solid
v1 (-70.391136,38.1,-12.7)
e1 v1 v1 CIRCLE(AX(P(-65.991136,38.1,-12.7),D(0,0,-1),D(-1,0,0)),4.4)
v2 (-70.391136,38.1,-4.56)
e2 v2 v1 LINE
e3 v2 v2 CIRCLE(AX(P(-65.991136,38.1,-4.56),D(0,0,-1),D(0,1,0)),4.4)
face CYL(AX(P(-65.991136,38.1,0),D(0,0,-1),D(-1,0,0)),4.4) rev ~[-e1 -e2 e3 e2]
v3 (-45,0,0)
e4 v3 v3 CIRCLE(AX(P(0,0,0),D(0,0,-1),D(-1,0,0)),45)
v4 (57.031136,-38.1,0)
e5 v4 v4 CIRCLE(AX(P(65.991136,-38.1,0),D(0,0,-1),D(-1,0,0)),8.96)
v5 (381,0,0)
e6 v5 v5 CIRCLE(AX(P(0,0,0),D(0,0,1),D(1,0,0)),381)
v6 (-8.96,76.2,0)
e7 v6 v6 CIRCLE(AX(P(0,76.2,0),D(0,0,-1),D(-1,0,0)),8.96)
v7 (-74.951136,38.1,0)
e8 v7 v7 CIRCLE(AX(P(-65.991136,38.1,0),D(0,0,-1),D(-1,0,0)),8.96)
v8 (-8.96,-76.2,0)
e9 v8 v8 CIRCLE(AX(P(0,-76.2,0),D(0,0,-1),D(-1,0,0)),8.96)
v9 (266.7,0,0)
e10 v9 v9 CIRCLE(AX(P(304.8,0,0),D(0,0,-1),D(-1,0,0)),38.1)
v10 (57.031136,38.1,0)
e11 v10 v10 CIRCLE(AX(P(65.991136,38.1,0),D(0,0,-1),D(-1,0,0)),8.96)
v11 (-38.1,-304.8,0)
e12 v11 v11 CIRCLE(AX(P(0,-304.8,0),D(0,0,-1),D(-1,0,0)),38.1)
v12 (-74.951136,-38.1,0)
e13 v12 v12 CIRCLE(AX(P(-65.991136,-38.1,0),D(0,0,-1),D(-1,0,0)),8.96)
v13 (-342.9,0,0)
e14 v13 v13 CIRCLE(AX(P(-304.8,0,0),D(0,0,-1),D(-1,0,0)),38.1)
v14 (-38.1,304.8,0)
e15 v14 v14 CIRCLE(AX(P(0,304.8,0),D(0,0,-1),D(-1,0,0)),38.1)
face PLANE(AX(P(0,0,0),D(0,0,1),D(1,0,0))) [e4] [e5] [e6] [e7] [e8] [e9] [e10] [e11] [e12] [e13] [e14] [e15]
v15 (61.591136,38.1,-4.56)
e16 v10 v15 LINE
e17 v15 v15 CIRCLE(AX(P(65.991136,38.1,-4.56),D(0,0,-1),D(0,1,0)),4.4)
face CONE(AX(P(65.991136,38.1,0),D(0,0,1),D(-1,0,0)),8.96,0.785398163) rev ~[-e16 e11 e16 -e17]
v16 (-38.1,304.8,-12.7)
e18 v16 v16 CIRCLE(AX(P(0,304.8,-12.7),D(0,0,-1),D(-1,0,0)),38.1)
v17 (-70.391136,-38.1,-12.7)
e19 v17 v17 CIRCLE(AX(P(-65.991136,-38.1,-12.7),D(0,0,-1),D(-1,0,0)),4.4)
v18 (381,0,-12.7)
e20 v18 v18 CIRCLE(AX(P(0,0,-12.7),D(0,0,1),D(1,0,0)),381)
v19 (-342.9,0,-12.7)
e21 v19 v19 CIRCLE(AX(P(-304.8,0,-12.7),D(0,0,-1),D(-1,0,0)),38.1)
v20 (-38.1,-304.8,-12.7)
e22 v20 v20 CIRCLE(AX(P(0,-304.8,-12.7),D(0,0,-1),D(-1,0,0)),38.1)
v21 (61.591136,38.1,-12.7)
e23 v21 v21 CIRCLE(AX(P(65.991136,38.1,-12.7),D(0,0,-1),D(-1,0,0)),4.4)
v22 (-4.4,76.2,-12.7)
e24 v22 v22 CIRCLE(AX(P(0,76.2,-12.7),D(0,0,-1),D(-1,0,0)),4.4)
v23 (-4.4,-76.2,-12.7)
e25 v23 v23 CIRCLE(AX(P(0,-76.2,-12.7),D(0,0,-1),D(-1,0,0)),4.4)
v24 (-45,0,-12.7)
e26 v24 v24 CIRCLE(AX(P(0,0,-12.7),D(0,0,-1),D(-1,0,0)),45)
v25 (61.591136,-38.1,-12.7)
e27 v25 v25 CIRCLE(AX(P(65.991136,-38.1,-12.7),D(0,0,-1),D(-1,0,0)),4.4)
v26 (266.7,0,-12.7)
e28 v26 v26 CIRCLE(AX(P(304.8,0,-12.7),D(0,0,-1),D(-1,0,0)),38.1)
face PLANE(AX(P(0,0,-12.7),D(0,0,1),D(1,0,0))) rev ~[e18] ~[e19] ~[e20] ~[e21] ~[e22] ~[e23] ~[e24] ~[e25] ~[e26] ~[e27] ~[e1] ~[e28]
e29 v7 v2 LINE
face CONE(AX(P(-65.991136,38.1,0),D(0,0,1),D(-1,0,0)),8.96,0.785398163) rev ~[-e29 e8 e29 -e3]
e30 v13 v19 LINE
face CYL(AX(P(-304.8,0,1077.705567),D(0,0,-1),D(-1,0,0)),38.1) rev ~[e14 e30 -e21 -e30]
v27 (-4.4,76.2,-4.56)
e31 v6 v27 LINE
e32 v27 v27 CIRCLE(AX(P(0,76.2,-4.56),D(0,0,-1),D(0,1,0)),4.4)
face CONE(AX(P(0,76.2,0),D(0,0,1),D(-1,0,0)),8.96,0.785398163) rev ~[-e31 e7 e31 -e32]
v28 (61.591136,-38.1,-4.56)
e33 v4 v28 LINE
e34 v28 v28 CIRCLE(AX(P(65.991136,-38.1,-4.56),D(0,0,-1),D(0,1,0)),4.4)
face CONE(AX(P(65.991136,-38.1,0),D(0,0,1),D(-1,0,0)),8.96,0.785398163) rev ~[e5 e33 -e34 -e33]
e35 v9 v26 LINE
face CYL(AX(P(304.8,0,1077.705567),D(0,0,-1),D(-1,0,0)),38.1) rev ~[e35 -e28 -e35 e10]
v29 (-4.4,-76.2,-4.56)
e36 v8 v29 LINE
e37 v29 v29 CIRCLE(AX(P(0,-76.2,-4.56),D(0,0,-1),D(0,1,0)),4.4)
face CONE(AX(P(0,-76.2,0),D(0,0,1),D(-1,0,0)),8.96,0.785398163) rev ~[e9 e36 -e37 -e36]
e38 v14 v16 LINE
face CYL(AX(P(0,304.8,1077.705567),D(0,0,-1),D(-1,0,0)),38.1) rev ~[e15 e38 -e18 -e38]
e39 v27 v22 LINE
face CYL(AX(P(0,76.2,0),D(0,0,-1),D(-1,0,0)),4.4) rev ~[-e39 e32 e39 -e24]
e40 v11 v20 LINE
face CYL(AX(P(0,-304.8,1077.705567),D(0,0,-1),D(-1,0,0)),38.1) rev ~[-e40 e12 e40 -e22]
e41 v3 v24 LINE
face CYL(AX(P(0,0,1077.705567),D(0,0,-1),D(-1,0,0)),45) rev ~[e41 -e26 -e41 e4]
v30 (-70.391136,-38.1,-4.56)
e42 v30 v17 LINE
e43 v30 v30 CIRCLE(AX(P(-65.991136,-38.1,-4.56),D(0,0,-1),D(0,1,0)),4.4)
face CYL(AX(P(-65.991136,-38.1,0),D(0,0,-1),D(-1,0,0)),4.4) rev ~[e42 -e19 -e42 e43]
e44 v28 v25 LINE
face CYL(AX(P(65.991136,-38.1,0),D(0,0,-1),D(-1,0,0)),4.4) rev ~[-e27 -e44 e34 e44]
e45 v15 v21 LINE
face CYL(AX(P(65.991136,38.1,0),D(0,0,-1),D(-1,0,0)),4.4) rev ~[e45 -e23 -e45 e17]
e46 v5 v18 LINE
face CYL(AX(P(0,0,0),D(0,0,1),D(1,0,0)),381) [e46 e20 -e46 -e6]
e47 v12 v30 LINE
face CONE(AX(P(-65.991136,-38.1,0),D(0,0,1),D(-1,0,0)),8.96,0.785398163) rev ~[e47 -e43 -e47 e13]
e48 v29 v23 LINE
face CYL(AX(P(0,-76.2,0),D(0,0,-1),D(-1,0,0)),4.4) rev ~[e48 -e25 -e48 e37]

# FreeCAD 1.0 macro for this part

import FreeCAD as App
import Part
import Sketcher
Q = App.Units.Quantity

doc = App.newDocument("Part")
params = doc.addObject("Spreadsheet::Sheet", "Params")
for row, (alias, value) in enumerate([
    ("sketch1_diameter", "30 in"),
    ("pad1_length", "0.5 in"),
    ("hole_diameter", "90 mm"),
    ("hole2_diameter", "8.8 mm"),
    ("hole2_csink_diameter", "17.92 mm"),
    ("sketch4_diameter", "3 in"),
    ("hole3_diameter", "3 in"),
], start=1):
    params.set(f"A{row}", alias)
    params.set(f"B{row}", "=" + value)
    params.setAlias(f"B{row}", alias)

body = doc.addObject("PartDesign::Body", "Body")

# Sketch on XY plane
sketch1 = body.newObject("Sketcher::SketchObject", "Sketch")
sketch1.AttachmentSupport = (doc.getObject("XY_Plane"), [""])
sketch1.MapMode = "FlatFace"
sketch1.addGeometry(Part.Circle(App.Vector(0, 0, 0), App.Vector(0, 0, 1), 381), False)
sketch1.addConstraint([
    Sketcher.Constraint("Coincident", 0, 3, -1, 1),
    Sketcher.Constraint("Diameter", 0, Q("30 in")),
])
sketch1.setExpression("Constraints[1]", "Params.sketch1_diameter")
pad1 = body.newObject("PartDesign::Pad", "Pad")
pad1.Profile = sketch1
pad1.setExpression("Length", "Params.pad1_length")
pad1.Reversed = True

# Sketch on XY plane
sketch2 = body.newObject("Sketcher::SketchObject", "Sketch001")
sketch2.AttachmentSupport = (doc.getObject("XY_Plane"), [""])
sketch2.MapMode = "FlatFace"
sketch2.addGeometry(Part.Circle(App.Vector(0, 0, 0), App.Vector(0, 0, 1), 45), False)
sketch2.addConstraint([
    Sketcher.Constraint("Coincident", 0, 3, -1, 1),
    Sketcher.Constraint("Diameter", 0, Q("90 mm")),
])
doc.recompute()
hole = body.newObject("PartDesign::Hole", "Hole")
hole.Profile = sketch2
hole.ThreadType = "None"
hole.setExpression("Diameter", "Params.hole_diameter")
hole.DepthType = "ThroughAll"

# Sketch on XY plane
sketch3 = body.newObject("Sketcher::SketchObject", "Sketch002")
sketch3.AttachmentSupport = (doc.getObject("XY_Plane"), [""])
sketch3.MapMode = "FlatFace"
sketch3.addGeometry([
    Part.Circle(App.Vector(0, 76.2, 0), App.Vector(0, 0, 1), 4.4),  # 0
    Part.Circle(App.Vector(66, 38.1, 0), App.Vector(0, 0, 1), 4.4),  # 1
    Part.Circle(App.Vector(66, -38.1, 0), App.Vector(0, 0, 1), 4.4),  # 2
    Part.Circle(App.Vector(0, -76.2, 0), App.Vector(0, 0, 1), 4.4),  # 3
    Part.Circle(App.Vector(-66, -38.1, 0), App.Vector(0, 0, 1), 4.4),  # 4
    Part.Circle(App.Vector(-66, 38.1, 0), App.Vector(0, 0, 1), 4.4),  # 5
], False)
sketch3.addConstraint([
    Sketcher.Constraint("Equal", 0, 1),
    Sketcher.Constraint("Equal", 1, 2),
    Sketcher.Constraint("Equal", 2, 3),
    Sketcher.Constraint("Equal", 3, 4),
    Sketcher.Constraint("Equal", 4, 5),
    Sketcher.Constraint("Symmetric", 0, 3, 3, 3, -1, 1),
    Sketcher.Constraint("Symmetric", 1, 3, 4, 3, -1, 1),
    Sketcher.Constraint("Symmetric", 2, 3, 5, 3, -1, 1),
    Sketcher.Constraint("Symmetric", 2, 3, 4, 3, -2),
    Sketcher.Constraint("PointOnObject", 0, 3, -2),
    Sketcher.Constraint("DistanceY", -1, 1, 0, 3, Q("3 in")),
    Sketcher.Constraint("DistanceY", 2, 3, 1, 3, Q("3 in")),
    Sketcher.Constraint("Diameter", 0, Q("8.8 mm")),
    Sketcher.Constraint("DistanceX", 4, 3, 2, 3, Q("131.982272 mm")),
])
doc.recompute()
hole2 = body.newObject("PartDesign::Hole", "Hole001")
hole2.Profile = sketch3
hole2.ThreadType = "None"
hole2.setExpression("Diameter", "Params.hole2_diameter")
hole2.DepthType = "ThroughAll"
hole2.HoleCutType = "Countersink"
hole2.setExpression("HoleCutDiameter", "Params.hole2_csink_diameter")
hole2.HoleCutCountersinkAngle = 90

# Sketch on XY plane
sketch4 = body.newObject("Sketcher::SketchObject", "Sketch003")
sketch4.AttachmentSupport = (doc.getObject("XY_Plane"), [""])
sketch4.MapMode = "FlatFace"
sketch4.addGeometry([
    Part.Circle(App.Vector(0, 305, 0), App.Vector(0, 0, 1), 38),
    Part.Circle(App.Vector(305, 0, 0), App.Vector(0, 0, 1), 38),
    Part.Circle(App.Vector(0, -305, 0), App.Vector(0, 0, 1), 38),
    Part.Circle(App.Vector(-305, 0, 0), App.Vector(0, 0, 1), 38),
], False)
sketch4.addConstraint([
    Sketcher.Constraint("Equal", 0, 1),
    Sketcher.Constraint("Equal", 1, 2),
    Sketcher.Constraint("Equal", 2, 3),
    Sketcher.Constraint("Symmetric", 0, 3, 2, 3, -1, 1),
    Sketcher.Constraint("Symmetric", 1, 3, 3, 3, -1, 1),
    Sketcher.Constraint("PointOnObject", 0, 3, -2),
    Sketcher.Constraint("PointOnObject", 1, 3, -1),
    Sketcher.Constraint("Diameter", 0, Q("3 in")),
    Sketcher.Constraint("DistanceY", -1, 1, 0, 3, Q("12 in")),
    Sketcher.Constraint("DistanceX", -1, 1, 1, 3, Q("12 in")),
])
sketch4.setExpression("Constraints[7]", "Params.sketch4_diameter")
doc.recompute()
hole3 = body.newObject("PartDesign::Hole", "Hole002")
hole3.Profile = sketch4
hole3.ThreadType = "None"
hole3.setExpression("Diameter", "Params.hole3_diameter")
hole3.DepthType = "ThroughAll"

doc.recompute()
